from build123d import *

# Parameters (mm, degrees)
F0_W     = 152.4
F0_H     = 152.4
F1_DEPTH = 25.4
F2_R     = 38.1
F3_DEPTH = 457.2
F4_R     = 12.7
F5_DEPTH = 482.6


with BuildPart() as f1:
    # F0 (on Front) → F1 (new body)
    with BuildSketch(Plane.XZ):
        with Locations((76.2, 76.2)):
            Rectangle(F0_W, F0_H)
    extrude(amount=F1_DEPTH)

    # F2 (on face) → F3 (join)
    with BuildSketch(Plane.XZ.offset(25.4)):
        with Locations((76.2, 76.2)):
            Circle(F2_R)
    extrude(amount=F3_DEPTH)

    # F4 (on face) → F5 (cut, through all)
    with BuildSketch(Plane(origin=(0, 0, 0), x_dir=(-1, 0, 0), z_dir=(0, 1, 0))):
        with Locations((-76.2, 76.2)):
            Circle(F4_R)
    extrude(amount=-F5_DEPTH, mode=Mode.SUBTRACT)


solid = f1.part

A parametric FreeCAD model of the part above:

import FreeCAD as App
import Part
import Sketcher
Q = App.Units.Quantity

doc = App.newDocument("Part")
body = doc.addObject("PartDesign::Body", "Body")

# Sketch on XZ plane
sketch1 = body.newObject("Sketcher::SketchObject", "Sketch")
sketch1.AttachmentSupport = (doc.getObject("XZ_Plane"), [""])
sketch1.MapMode = "FlatFace"
sketch1.addGeometry([
    Part.LineSegment(App.Vector(0, 152, 0), App.Vector(0, 0, 0)),
    Part.LineSegment(App.Vector(0, 0, 0), App.Vector(152, 0, 0)),
    Part.LineSegment(App.Vector(152, 0, 0), App.Vector(152, 152, 0)),
    Part.LineSegment(App.Vector(152, 152, 0), App.Vector(0, 152, 0)),
], False)
sketch1.addConstraint([
    Sketcher.Constraint("Coincident", 0, 2, 1, 1),
    Sketcher.Constraint("Coincident", 1, 2, 2, 1),
    Sketcher.Constraint("Coincident", 2, 2, 3, 1),
    Sketcher.Constraint("Coincident", 3, 2, 0, 1),
    Sketcher.Constraint("Vertical", 0),
    Sketcher.Constraint("Horizontal", 1),
    Sketcher.Constraint("Vertical", 2),
    Sketcher.Constraint("Horizontal", 3),
    Sketcher.Constraint("Coincident", 0, 2, -1, 1),
    Sketcher.Constraint("Equal", 3, 0),
    Sketcher.Constraint("DistanceX", 1, 1, 1, 2, Q("6 in")),
])
pad1 = body.newObject("PartDesign::Pad", "Pad")
pad1.Profile = sketch1
pad1.Length = Q("1 in")

# Sketch on XZ plane
sketch2 = body.newObject("Sketcher::SketchObject", "Sketch001")
sketch2.AttachmentSupport = (doc.getObject("XZ_Plane"), [""])
sketch2.MapMode = "FlatFace"
sketch2.AttachmentOffset = App.Placement(App.Vector(0, 0, 1 * 25.4), App.Rotation())
sketch2.addGeometry(Part.Circle(App.Vector(76, 76, 0), App.Vector(0, 0, 1), 38), False)
sketch2.addConstraint([
    Sketcher.Constraint("Diameter", 0, Q("3 in")),
    Sketcher.Constraint("DistanceX", -1, 1, 0, 3, Q("3 in")),
    Sketcher.Constraint("DistanceY", -1, 1, 0, 3, Q("3 in")),
])
pad2 = body.newObject("PartDesign::Pad", "Pad001")
pad2.Profile = sketch2
pad2.Length = Q("18 in")

# Sketch on XZ plane
sketch3 = body.newObject("Sketcher::SketchObject", "Sketch002")
sketch3.AttachmentSupport = (doc.getObject("XZ_Plane"), [""])
sketch3.MapMode = "FlatFace"
sketch3.addGeometry(Part.Circle(App.Vector(76, 76, 0), App.Vector(0, 0, 1), 13), False)
sketch3.addConstraint([
    Sketcher.Constraint("Diameter", 0, Q("1 in")),
    Sketcher.Constraint("DistanceX", -1, 1, 0, 3, Q("3 in")),
    Sketcher.Constraint("DistanceY", -1, 1, 0, 3, Q("3 in")),
])
pocket1 = body.newObject("PartDesign::Pocket", "Pocket")
pocket1.Profile = sketch3
pocket1.Type = "ThroughAll"
pocket1.Reversed = True

doc.recompute()
